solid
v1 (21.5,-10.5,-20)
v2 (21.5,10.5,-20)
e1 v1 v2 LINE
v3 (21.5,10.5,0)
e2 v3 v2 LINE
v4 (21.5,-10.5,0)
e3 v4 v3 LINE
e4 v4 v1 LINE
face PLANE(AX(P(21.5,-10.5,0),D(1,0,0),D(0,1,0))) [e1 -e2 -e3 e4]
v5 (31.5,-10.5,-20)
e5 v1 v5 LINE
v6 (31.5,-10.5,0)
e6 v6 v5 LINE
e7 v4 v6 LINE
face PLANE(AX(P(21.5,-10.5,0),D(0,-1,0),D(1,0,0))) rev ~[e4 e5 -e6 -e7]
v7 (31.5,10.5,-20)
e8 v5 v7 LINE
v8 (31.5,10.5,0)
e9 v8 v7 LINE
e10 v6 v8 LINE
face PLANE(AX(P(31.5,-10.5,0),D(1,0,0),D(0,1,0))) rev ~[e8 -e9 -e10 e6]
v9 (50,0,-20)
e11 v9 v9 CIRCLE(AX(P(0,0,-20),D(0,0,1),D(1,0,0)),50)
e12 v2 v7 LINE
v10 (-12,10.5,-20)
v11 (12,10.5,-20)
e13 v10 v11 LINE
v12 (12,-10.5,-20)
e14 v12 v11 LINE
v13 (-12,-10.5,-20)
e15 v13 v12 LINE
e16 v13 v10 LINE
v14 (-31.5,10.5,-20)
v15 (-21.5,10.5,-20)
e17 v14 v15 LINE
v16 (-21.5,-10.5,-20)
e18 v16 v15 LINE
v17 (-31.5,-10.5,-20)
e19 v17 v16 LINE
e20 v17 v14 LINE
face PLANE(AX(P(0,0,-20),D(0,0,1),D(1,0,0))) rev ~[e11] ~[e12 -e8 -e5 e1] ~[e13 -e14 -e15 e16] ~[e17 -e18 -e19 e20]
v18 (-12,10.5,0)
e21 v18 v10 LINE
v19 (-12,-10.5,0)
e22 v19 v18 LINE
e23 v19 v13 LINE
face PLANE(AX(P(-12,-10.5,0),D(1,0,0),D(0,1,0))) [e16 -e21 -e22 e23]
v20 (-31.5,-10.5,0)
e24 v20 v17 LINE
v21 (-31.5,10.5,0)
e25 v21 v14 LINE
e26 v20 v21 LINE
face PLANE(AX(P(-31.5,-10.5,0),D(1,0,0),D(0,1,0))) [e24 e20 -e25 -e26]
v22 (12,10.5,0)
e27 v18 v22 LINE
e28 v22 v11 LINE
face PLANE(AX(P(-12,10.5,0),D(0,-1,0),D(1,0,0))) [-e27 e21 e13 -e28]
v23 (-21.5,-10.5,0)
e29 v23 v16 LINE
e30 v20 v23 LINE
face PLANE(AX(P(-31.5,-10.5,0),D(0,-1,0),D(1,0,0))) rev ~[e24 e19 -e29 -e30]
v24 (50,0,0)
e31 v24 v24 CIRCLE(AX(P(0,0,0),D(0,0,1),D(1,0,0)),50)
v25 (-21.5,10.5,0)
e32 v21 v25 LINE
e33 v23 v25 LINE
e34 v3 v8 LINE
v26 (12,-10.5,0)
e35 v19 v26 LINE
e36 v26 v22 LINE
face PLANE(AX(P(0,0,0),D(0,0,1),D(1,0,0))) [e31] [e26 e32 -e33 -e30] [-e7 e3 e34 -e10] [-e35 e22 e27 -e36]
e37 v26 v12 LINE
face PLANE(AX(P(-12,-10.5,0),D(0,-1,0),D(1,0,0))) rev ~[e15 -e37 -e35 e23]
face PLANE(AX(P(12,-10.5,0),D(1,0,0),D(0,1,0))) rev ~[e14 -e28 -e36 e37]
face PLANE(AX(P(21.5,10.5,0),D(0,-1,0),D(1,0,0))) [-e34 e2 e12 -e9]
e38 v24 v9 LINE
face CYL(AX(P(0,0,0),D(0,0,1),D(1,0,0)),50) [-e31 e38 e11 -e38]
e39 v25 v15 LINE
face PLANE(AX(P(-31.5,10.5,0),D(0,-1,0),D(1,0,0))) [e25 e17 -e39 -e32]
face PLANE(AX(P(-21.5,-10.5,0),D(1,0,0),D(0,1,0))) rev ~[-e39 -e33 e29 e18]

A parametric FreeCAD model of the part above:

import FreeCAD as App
import Part
import Sketcher

V = App.Vector


def add_polygon(sketch, points):
    """Adds a closed chain of lines whose ends are joined by coincident constraints."""
    first, n = sketch.GeometryCount, len(points)
    for a, b in zip(points, points[1:] + points[:1]):
        sketch.addGeometry(Part.LineSegment(App.Vector(*a, 0), App.Vector(*b, 0)), False)
    for i in range(n):
        sketch.addConstraint(Sketcher.Constraint("Coincident", first + i, 2, first + (i + 1) % n, 1))

doc = App.newDocument("Part")
body = doc.addObject("PartDesign::Body", "Body")

sketch1 = doc.addObject("Sketcher::SketchObject", "Sketch")
body.addObject(sketch1)
sketch1.AttachmentSupport = (doc.XY_Plane, [""])
sketch1.MapMode = "FlatFace"
sketch1.addGeometry(Part.Circle(V(0, 0, 0), V(0, 0, 1), 50), False)
add_polygon(sketch1, [(-22, -10), (-32, -10), (-32, 10), (-22, 10)])
add_polygon(sketch1, [(12, -10), (-12, -10), (-12, 10), (12, 10)])
add_polygon(sketch1, [(32, -10), (22, -10), (22, 10), (32, 10)])
sketch1.addConstraint(Sketcher.Constraint("Horizontal", 1))
sketch1.addConstraint(Sketcher.Constraint("Vertical", 2))
sketch1.addConstraint(Sketcher.Constraint("Horizontal", 3))
sketch1.addConstraint(Sketcher.Constraint("Vertical", 4))
sketch1.addConstraint(Sketcher.Constraint("Horizontal", 5))
sketch1.addConstraint(Sketcher.Constraint("Vertical", 6))
sketch1.addConstraint(Sketcher.Constraint("Horizontal", 7))
sketch1.addConstraint(Sketcher.Constraint("Vertical", 8))
sketch1.addConstraint(Sketcher.Constraint("Horizontal", 9))
sketch1.addConstraint(Sketcher.Constraint("Vertical", 10))
sketch1.addConstraint(Sketcher.Constraint("Horizontal", 11))
sketch1.addConstraint(Sketcher.Constraint("Vertical", 12))
sketch1.addConstraint(Sketcher.Constraint("Coincident", 0, 3, -1, 1))
sketch1.addConstraint(Sketcher.Constraint("Symmetric", 5, 2, 7, 2, -1, 1))
sketch1.addConstraint(Sketcher.Constraint("Symmetric", 3, 2, 9, 2, -1, 1))
sketch1.addConstraint(Sketcher.Constraint("Symmetric", 1, 2, 11, 2, -1, 1))
sketch1.addConstraint(Sketcher.Constraint("Horizontal", 4, 2, 5, 2))
sketch1.addConstraint(Sketcher.Constraint("Horizontal", 3, 2, 6, 2))
sketch1.addConstraint(Sketcher.Constraint("Diameter", 0, 100.0))
sketch1.addConstraint(Sketcher.Constraint("DistanceX", 1, 2, 1, 1, 10.0))
sketch1.addConstraint(Sketcher.Constraint("DistanceX", 5, 2, 5, 1, 24.0))
sketch1.addConstraint(Sketcher.Constraint("DistanceY", 2, 1, 2, 2, 21.0))
sketch1.addConstraint(Sketcher.Constraint("DistanceX", 1, 2, -1, 1, 31.5))
pad1 = doc.addObject("PartDesign::Pad", "Pad")
body.addObject(pad1)
pad1.Profile = sketch1
pad1.Length = 20
pad1.Reversed = True

doc.recompute()
